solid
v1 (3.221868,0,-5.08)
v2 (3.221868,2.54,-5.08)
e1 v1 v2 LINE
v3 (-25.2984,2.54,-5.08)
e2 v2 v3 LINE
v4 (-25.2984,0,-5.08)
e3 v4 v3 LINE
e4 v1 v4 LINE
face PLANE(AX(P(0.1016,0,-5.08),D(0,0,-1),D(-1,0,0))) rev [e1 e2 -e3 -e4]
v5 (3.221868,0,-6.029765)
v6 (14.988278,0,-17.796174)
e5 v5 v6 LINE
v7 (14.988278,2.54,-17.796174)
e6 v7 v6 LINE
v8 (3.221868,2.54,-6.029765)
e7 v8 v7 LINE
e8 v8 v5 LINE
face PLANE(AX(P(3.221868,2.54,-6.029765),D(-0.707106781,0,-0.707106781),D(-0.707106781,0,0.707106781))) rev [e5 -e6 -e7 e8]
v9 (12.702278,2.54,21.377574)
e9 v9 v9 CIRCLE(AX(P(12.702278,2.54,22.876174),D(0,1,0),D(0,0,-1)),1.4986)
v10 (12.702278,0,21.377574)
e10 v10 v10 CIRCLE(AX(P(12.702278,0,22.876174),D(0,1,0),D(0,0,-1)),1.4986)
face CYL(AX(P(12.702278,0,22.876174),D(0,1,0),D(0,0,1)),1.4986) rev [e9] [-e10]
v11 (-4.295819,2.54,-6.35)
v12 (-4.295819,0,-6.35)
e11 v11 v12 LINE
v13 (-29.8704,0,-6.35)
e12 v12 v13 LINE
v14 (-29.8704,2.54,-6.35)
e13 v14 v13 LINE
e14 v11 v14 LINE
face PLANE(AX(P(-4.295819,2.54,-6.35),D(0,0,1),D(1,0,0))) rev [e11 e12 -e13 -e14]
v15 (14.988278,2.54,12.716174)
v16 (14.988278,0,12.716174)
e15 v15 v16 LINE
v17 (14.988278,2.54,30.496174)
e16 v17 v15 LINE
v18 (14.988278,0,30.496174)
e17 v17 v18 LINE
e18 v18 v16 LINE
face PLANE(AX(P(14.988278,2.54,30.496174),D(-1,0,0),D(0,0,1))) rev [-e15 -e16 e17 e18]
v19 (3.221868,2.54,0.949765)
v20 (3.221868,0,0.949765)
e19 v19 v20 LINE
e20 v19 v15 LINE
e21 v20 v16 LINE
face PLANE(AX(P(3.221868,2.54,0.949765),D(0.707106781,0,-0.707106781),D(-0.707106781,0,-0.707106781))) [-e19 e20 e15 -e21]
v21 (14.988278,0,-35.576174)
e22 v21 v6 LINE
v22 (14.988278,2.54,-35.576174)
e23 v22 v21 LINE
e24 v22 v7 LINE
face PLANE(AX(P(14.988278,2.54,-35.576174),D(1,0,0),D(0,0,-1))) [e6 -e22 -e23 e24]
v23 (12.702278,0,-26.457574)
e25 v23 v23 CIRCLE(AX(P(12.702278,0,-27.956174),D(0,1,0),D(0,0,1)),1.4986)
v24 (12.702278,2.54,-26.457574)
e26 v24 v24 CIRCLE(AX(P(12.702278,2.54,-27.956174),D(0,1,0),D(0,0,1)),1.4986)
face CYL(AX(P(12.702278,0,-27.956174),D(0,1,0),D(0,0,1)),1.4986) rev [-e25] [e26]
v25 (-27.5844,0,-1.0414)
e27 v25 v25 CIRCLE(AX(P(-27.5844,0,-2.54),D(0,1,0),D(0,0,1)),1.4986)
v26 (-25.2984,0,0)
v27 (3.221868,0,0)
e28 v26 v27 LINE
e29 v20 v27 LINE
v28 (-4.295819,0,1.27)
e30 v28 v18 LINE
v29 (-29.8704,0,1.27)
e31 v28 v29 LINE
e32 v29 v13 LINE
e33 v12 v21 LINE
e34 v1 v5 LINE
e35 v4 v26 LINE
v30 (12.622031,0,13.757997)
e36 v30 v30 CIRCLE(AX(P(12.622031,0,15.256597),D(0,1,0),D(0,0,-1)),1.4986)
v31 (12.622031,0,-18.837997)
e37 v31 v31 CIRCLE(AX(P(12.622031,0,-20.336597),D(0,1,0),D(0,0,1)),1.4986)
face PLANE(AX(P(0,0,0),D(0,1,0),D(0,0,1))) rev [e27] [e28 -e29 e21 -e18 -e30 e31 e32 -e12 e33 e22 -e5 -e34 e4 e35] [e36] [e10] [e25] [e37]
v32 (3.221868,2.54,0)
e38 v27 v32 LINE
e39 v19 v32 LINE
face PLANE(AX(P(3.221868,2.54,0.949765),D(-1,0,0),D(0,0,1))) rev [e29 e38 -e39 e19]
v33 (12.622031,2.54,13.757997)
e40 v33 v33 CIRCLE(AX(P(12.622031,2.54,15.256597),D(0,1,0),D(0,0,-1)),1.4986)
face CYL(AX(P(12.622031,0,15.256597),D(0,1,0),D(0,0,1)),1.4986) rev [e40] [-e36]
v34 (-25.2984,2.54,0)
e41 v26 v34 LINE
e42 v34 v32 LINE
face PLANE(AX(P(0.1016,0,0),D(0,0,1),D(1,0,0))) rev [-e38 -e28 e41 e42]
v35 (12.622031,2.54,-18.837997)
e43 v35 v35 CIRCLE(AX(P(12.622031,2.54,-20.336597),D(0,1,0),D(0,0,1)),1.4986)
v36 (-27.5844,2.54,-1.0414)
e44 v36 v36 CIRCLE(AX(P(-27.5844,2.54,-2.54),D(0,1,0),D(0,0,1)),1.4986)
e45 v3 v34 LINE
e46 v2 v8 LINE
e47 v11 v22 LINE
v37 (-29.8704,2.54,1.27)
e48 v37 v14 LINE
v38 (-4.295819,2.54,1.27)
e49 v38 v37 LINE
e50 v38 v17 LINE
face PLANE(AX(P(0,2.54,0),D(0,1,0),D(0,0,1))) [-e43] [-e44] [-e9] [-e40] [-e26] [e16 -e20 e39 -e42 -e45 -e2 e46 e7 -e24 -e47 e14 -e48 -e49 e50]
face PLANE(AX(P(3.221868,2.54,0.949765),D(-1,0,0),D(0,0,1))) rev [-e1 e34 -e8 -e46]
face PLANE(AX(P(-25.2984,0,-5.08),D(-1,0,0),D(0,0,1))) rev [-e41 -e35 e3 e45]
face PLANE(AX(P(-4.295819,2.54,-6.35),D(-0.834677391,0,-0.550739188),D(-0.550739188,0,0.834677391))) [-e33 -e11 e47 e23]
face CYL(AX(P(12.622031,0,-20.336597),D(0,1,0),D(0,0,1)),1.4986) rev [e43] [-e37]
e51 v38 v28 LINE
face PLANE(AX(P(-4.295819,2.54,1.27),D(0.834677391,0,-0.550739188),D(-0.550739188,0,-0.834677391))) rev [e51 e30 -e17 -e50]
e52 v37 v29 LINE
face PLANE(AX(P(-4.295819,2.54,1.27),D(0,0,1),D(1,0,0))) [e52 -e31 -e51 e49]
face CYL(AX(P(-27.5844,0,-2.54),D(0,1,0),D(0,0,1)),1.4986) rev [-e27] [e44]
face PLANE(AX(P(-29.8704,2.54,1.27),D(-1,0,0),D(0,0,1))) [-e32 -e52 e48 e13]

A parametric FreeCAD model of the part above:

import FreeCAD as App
import Part
import Sketcher
Q = App.Units.Quantity

doc = App.newDocument("Part")
body = doc.addObject("PartDesign::Body", "Body")

# Sketch on XZ plane
sketch1 = body.newObject("Sketcher::SketchObject", "Sketch")
sketch1.AttachmentSupport = (doc.getObject("XZ_Plane"), [""])
sketch1.MapMode = "FlatFace"
sketch1.addGeometry([
    Part.LineSegment(App.Vector(3, -6, 0), App.Vector(15, -18, 0)),  # 0
    Part.LineSegment(App.Vector(15, -18, 0), App.Vector(15, -36, 0)),  # 1
    Part.LineSegment(App.Vector(15, -36, 0), App.Vector(-4, -6, 0)),  # 2
    Part.LineSegment(App.Vector(-4, -6, 0), App.Vector(-30, -6, 0)),  # 3
    Part.LineSegment(App.Vector(-30, -6, 0), App.Vector(-30, 1, 0)),  # 4
    Part.LineSegment(App.Vector(-30, 1, 0), App.Vector(-4, 1, 0)),  # 5
    Part.LineSegment(App.Vector(-4, 1, 0), App.Vector(15, 30, 0)),  # 6
    Part.LineSegment(App.Vector(15, 30, 0), App.Vector(15, 13, 0)),  # 7
    Part.LineSegment(App.Vector(15, 13, 0), App.Vector(3, 1, 0)),  # 8
    Part.LineSegment(App.Vector(3, 1, 0), App.Vector(3, -6, 0)),  # 9
], False)
sketch1.addConstraint([
    Sketcher.Constraint("Coincident", 0, 2, 1, 1),
    Sketcher.Constraint("Coincident", 1, 2, 2, 1),
    Sketcher.Constraint("Coincident", 2, 2, 3, 1),
    Sketcher.Constraint("Coincident", 3, 2, 4, 1),
    Sketcher.Constraint("Coincident", 4, 2, 5, 1),
    Sketcher.Constraint("Coincident", 5, 2, 6, 1),
    Sketcher.Constraint("Coincident", 6, 2, 7, 1),
    Sketcher.Constraint("Coincident", 7, 2, 8, 1),
    Sketcher.Constraint("Coincident", 8, 2, 9, 1),
    Sketcher.Constraint("Coincident", 9, 2, 0, 1),
    Sketcher.Constraint("Vertical", 1),
    Sketcher.Constraint("Horizontal", 3),
    Sketcher.Constraint("Vertical", 4),
    Sketcher.Constraint("Horizontal", 5),
    Sketcher.Constraint("Vertical", 7),
    Sketcher.Constraint("Vertical", 9),
    Sketcher.Constraint("Perpendicular", 0, 8),
    Sketcher.Constraint("Vertical", 2, 2, 5, 2),
    Sketcher.Constraint("Vertical", 1, 2, 6, 2),
    Sketcher.Constraint("Equal", 1, 7),
    Sketcher.Constraint("Equal", 2, 6),
    Sketcher.Constraint("Equal", 0, 8),
    Sketcher.Constraint("DistanceY", 1, 2, 1, 1, Q("0.7 in")),
    Sketcher.Constraint("DistanceY", 4, 1, 4, 2, Q("0.3 in")),
    Sketcher.Constraint("DistanceY", 2, 2, -1, 1, Q("0.25 in")),
    Sketcher.Constraint("DistanceX", 3, 2, -1, 1, Q("1.176 in")),
    Sketcher.Constraint("DistanceX", 3, 2, 3, 1, Q("25.574581 mm")),
    Sketcher.Constraint("DistanceY", 9, 2, 9, 1, Q("6.97953 mm")),
    Sketcher.Constraint("DistanceX", -1, 1, 8, 2, Q("3.221868 mm")),
    Sketcher.Constraint("DistanceY", 0, 2, 6, 2, Q("48.292349 mm")),
])
pad1 = body.newObject("PartDesign::Pad", "Pad")
pad1.Profile = sketch1
pad1.Length = Q("0.1 in")
pad1.Reversed = True

# Sketch on XZ plane
sketch2 = body.newObject("Sketcher::SketchObject", "Sketch001")
sketch2.AttachmentSupport = (doc.getObject("XZ_Plane"), [""])
sketch2.MapMode = "FlatFace"
sketch2.AttachmentOffset = App.Placement(App.Vector(0, 0, -0.1 * 25.4), App.Rotation())
sketch2.addGeometry([
    Part.Circle(App.Vector(-27.6, -2.5, 0), App.Vector(0, 0, 1), 1.5),  # 0
    Part.Circle(App.Vector(12.7, -28, 0), App.Vector(0, 0, 1), 1.5),  # 1
    Part.Circle(App.Vector(12.6, -20.3, 0), App.Vector(0, 0, 1), 1.5),  # 2
    Part.Circle(App.Vector(12.6, 15.3, 0), App.Vector(0, 0, 1), 1.5),  # 3
    Part.Circle(App.Vector(12.7, 22.9, 0), App.Vector(0, 0, 1), 1.5),  # 4
    Part.LineSegment(App.Vector(-25.3, -5.1, 0), App.Vector(-25.3, 0, 0)),  # 5
    Part.LineSegment(App.Vector(-25.3, 0, 0), App.Vector(0.1, 0, 0)),  # 6
    Part.LineSegment(App.Vector(0.1, 0, 0), App.Vector(0.1, -5.1, 0)),  # 7
    Part.LineSegment(App.Vector(0.1, -5.1, 0), App.Vector(-25.3, -5.1, 0)),  # 8
], False)
sketch2.addConstraint([
    Sketcher.Constraint("Coincident", 5, 2, 6, 1),
    Sketcher.Constraint("Coincident", 6, 2, 7, 1),
    Sketcher.Constraint("Coincident", 7, 2, 8, 1),
    Sketcher.Constraint("Coincident", 8, 2, 5, 1),
    Sketcher.Constraint("Vertical", 5),
    Sketcher.Constraint("Horizontal", 6),
    Sketcher.Constraint("Vertical", 7),
    Sketcher.Constraint("Horizontal", 8),
    Sketcher.Constraint("Equal", 0, 1),
    Sketcher.Constraint("Equal", 1, 2),
    Sketcher.Constraint("Equal", 2, 3),
    Sketcher.Constraint("Equal", 3, 4),
    Sketcher.Constraint("PointOnObject", 5, 2, -1),
    Sketcher.Constraint("Vertical", 2, 3, 3, 3),
    Sketcher.Constraint("Vertical", 1, 3, 4, 3),
    Sketcher.Constraint("DistanceX", 6, 1, 6, 2, Q("1 in")),
    Sketcher.Constraint("Diameter", 0, Q("0.118 in")),
    Sketcher.Constraint("DistanceY", 5, 1, 5, 2, Q("0.2 in")),
    Sketcher.Constraint("DistanceY", 0, 3, -1, 1, Q("0.1 in")),
    Sketcher.Constraint("DistanceX", 0, 3, 5, 2, Q("0.09 in")),
    Sketcher.Constraint("DistanceX", 0, 3, -1, 1, Q("1.086 in")),
    Sketcher.Constraint("DistanceX", -1, 1, 2, 3, Q("12.622031 mm")),
    Sketcher.Constraint("DistanceY", 1, 3, 3, 3, Q("43.212771 mm")),
    Sketcher.Constraint("DistanceY", 2, 3, 4, 3, Q("43.212771 mm")),
    Sketcher.Constraint("DistanceY", 1, 3, 4, 3, Q("50.832349 mm")),
    Sketcher.Constraint("DistanceX", -1, 1, 1, 3, Q("12.702278 mm")),
    Sketcher.Constraint("DistanceY", 1, 3, -1, 1, Q("27.956174 mm")),
])
pocket1 = body.newObject("PartDesign::Pocket", "Pocket")
pocket1.Profile = sketch2
pocket1.Length = Q("0.1 in")
pocket1.Reversed = True

# Sketch on XZ plane
sketch3 = body.newObject("Sketcher::SketchObject", "Sketch002")
sketch3.AttachmentSupport = (doc.getObject("XZ_Plane"), [""])
sketch3.MapMode = "FlatFace"
sketch3.AttachmentOffset = App.Placement(App.Vector(0, 0, -0.1 * 25.4), App.Rotation())
sketch3.addGeometry([
    Part.LineSegment(App.Vector(3.2, -5.1, 0), App.Vector(0.1, -5.1, 0)),
    Part.LineSegment(App.Vector(0.1, -5.1, 0), App.Vector(0, 0, 0)),
    Part.LineSegment(App.Vector(0, 0, 0), App.Vector(3.2, 0, 0)),
    Part.LineSegment(App.Vector(3.2, 0, 0), App.Vector(3.2, -5.1, 0)),
], False)
sketch3.addConstraint([
    Sketcher.Constraint("Coincident", 0, 2, 1, 1),
    Sketcher.Constraint("Coincident", 1, 2, 2, 1),
    Sketcher.Constraint("Coincident", 2, 2, 3, 1),
    Sketcher.Constraint("Coincident", 3, 2, 0, 1),
    Sketcher.Constraint("Horizontal", 0),
    Sketcher.Constraint("Horizontal", 2),
    Sketcher.Constraint("Vertical", 3),
    Sketcher.Constraint("Coincident", 1, 2, -1, 1),
    Sketcher.Constraint("DistanceY", 3, 2, 3, 1, Q("0.2 in")),
    Sketcher.Constraint("DistanceX", -1, 1, 0, 2, Q("0.004 in")),
    Sketcher.Constraint("DistanceX", 0, 2, 0, 1, Q("3.120268 mm")),
])
pocket2 = body.newObject("PartDesign::Pocket", "Pocket001")
pocket2.Profile = sketch3
pocket2.Type = "ThroughAll"
pocket2.Reversed = True

doc.recompute()
